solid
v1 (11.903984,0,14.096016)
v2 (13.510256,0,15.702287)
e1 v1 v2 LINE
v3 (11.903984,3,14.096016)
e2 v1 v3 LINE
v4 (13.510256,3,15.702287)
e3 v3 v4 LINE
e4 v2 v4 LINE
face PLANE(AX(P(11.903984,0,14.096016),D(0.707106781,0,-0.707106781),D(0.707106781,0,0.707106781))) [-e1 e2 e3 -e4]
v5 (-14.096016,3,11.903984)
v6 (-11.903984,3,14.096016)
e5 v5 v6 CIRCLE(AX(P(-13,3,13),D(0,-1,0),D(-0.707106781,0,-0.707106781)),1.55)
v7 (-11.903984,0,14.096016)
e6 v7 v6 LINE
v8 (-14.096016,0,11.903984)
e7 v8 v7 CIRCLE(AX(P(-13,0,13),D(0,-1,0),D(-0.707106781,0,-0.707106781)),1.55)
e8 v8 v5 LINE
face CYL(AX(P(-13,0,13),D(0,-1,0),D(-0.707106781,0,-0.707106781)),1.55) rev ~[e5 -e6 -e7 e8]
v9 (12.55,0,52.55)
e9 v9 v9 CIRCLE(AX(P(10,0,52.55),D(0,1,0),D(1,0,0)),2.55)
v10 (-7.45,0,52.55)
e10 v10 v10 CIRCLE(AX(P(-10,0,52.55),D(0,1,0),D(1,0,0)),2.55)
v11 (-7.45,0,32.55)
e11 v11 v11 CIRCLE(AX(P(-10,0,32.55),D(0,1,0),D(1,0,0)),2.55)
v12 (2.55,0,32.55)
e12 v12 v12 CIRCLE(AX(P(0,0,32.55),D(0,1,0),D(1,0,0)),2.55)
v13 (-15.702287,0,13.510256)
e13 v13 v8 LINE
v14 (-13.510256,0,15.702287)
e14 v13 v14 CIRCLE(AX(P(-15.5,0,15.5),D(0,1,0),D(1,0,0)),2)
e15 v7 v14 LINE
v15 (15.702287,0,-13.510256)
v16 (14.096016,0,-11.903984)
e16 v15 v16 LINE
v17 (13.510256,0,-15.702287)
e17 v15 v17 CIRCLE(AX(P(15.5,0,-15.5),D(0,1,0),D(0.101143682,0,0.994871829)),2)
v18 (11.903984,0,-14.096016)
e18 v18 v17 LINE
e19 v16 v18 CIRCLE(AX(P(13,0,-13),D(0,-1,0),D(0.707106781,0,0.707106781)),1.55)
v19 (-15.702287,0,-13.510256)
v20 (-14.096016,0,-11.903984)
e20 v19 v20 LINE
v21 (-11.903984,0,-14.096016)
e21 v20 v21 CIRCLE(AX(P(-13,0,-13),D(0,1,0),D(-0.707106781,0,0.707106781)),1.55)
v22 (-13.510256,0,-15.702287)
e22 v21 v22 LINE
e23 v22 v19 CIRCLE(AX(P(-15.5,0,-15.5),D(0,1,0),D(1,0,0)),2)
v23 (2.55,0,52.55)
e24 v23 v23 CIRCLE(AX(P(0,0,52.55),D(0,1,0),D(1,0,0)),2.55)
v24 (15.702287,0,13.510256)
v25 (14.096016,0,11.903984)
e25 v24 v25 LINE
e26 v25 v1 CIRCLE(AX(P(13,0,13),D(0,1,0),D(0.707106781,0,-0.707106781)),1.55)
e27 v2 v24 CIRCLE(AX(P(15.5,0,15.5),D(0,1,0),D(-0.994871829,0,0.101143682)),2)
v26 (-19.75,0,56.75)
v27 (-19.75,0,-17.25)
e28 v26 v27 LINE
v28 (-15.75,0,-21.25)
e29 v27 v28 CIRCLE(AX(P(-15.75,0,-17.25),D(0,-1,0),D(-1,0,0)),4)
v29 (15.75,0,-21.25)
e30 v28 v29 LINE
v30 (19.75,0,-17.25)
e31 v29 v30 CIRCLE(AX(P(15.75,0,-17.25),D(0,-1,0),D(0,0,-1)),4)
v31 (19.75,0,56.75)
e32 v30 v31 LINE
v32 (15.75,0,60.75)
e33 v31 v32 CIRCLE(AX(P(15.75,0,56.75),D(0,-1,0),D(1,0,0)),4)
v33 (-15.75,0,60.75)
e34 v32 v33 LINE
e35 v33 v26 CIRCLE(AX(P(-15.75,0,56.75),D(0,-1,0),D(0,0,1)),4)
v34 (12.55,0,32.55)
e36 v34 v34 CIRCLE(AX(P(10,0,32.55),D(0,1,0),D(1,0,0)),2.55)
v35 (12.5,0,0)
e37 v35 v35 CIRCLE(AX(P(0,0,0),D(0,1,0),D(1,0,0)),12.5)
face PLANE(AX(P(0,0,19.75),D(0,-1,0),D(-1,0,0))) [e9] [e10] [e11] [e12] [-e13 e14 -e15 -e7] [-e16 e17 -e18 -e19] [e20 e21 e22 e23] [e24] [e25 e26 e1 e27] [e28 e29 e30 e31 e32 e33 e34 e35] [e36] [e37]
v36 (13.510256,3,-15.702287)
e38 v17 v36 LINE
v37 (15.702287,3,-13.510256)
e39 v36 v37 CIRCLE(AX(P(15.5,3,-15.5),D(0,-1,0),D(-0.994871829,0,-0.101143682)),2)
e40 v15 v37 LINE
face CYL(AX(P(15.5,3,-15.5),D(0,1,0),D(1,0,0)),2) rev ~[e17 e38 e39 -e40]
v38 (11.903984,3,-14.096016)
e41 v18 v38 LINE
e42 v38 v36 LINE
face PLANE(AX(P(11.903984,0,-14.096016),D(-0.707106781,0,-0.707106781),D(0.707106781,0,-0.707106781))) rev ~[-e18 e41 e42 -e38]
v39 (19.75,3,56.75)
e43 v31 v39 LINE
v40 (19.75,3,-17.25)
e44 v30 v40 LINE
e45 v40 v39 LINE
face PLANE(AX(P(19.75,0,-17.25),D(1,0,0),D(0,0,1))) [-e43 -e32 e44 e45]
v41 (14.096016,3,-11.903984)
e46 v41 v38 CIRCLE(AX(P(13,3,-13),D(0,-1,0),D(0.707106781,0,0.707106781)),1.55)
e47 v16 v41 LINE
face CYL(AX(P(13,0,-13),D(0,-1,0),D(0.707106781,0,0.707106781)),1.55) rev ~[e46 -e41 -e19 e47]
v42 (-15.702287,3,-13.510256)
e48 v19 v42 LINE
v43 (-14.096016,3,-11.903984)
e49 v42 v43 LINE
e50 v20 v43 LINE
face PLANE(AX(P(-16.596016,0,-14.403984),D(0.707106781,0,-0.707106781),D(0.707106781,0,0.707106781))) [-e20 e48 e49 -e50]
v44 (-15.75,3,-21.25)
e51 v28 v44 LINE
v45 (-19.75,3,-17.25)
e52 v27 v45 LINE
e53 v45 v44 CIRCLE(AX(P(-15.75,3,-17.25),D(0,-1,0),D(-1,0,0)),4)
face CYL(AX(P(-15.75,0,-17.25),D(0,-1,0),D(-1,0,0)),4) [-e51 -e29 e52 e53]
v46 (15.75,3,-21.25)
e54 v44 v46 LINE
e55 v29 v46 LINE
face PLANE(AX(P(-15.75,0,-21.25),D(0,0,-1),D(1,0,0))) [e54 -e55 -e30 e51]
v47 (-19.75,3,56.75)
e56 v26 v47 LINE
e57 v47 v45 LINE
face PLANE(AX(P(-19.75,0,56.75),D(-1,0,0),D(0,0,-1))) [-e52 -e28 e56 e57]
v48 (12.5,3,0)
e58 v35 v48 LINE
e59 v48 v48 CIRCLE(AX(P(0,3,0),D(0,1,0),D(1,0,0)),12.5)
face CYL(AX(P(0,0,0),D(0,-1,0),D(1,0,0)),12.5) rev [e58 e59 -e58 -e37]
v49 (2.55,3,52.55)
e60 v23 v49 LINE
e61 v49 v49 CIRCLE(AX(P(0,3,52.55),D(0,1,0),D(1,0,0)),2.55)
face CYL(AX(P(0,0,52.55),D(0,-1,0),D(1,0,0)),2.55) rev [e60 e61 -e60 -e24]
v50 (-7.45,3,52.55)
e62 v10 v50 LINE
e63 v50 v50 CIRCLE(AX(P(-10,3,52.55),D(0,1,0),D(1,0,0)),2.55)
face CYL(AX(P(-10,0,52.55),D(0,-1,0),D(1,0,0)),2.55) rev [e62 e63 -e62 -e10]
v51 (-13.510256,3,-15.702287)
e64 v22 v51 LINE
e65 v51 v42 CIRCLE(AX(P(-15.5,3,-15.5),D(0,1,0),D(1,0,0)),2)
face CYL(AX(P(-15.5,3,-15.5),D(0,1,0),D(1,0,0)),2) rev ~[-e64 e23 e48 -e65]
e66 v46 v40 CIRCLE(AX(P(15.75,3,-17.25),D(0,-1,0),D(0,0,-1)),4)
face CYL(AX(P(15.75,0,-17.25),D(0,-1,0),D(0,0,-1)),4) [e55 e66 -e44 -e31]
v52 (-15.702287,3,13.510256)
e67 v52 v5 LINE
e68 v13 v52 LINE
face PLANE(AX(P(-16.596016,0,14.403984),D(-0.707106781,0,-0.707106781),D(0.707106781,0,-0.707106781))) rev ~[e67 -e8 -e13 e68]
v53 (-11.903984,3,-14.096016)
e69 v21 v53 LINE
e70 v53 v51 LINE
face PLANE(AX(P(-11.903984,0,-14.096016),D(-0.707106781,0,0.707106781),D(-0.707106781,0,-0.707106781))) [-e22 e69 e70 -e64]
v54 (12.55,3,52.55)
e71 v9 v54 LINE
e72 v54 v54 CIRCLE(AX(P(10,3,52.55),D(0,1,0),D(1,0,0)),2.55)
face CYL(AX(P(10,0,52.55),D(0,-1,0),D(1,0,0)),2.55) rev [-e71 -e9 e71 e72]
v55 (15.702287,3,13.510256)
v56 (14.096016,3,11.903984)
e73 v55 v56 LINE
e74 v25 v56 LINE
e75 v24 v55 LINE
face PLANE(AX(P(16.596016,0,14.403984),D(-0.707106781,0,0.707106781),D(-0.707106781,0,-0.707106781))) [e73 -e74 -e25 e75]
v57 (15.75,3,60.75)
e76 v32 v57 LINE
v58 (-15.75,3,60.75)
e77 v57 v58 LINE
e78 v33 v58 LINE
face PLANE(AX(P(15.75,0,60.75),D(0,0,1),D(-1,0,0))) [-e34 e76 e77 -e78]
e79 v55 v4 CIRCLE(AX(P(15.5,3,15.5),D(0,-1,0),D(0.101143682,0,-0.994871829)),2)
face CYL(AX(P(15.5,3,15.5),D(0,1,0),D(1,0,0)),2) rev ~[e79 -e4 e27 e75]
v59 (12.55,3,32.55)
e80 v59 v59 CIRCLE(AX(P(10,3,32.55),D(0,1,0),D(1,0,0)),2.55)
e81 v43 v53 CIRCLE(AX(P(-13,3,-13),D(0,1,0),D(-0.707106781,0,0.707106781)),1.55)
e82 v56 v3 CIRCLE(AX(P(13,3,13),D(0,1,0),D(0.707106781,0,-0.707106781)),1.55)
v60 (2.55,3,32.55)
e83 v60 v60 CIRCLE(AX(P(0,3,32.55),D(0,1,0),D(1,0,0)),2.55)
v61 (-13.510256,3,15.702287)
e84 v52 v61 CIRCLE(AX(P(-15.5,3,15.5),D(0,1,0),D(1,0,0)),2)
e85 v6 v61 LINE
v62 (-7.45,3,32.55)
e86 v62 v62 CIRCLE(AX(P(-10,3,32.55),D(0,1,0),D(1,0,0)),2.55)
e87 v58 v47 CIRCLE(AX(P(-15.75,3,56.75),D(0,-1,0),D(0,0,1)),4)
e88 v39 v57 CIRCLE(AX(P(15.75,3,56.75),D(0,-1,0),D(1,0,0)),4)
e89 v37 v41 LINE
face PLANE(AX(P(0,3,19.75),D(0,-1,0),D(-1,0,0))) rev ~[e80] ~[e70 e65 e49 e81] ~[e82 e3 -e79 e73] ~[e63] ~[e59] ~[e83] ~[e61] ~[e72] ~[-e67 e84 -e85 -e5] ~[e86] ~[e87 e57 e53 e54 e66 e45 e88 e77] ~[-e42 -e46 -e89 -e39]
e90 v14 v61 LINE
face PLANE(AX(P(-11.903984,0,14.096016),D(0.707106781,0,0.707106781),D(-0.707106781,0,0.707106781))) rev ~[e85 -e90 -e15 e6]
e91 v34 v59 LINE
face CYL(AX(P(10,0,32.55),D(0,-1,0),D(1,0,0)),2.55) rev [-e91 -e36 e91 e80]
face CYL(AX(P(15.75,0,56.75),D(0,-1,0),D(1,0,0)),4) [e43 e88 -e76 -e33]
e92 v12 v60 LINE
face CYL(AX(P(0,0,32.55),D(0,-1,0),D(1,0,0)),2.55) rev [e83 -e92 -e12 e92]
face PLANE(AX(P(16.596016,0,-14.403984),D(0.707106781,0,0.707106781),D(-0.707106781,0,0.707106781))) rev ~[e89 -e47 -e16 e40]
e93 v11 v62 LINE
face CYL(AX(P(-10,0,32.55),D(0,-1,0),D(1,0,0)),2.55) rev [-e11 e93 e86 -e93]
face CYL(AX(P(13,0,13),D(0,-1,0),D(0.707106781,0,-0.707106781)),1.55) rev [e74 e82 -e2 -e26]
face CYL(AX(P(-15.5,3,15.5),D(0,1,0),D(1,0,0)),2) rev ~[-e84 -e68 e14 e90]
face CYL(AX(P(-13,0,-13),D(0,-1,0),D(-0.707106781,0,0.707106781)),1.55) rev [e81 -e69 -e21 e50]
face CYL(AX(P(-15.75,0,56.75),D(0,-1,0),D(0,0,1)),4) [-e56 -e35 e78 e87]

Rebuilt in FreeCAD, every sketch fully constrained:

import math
import FreeCAD as App
import Part
import Sketcher

V = App.Vector
Q = App.Units.Quantity

doc = App.newDocument("Part")
body = doc.addObject("PartDesign::Body", "Body")

sketch1 = body.newObject("Sketcher::SketchObject", "Sketch")
sketch1.AttachmentSupport = (doc.getObject("XZ_Plane"), [""])
sketch1.MapMode = "FlatFace"
sketch1.addGeometry([
    Part.LineSegment(V(-15.8, 60.8, 0), V(15.8, 60.8, 0)),
    Part.ArcOfCircle(Part.Circle(V(15.8, 56.8, 0), V(0, 0, 1), 4), math.radians(0), math.radians(90)),
    Part.LineSegment(V(19.8, 56.8, 0), V(19.8, -17.2, 0)),
    Part.ArcOfCircle(Part.Circle(V(15.8, -17.3, 0), V(0, 0, 1), 4), math.radians(-90), math.radians(0)),
    Part.LineSegment(V(15.8, -21.2, 0), V(-15.8, -21.2, 0)),
    Part.ArcOfCircle(Part.Circle(V(-15.8, -17.3, 0), V(0, 0, 1), 4), math.radians(180), math.radians(270)),
    Part.LineSegment(V(-19.8, -17.2, 0), V(-19.8, 56.8, 0)),
    Part.ArcOfCircle(Part.Circle(V(-15.8, 56.8, 0), V(0, 0, 1), 4), math.radians(90), math.radians(180)),
    Part.Circle(V(10, 52.5, 0), V(0, 0, 1), 2.5),
    Part.Circle(V(10, 32.5, 0), V(0, 0, 1), 2.5),
    Part.Circle(V(0, 52.5, 0), V(0, 0, 1), 2.5),
    Part.Circle(V(-10, 52.5, 0), V(0, 0, 1), 2.5),
    Part.Circle(V(0, 32.5, 0), V(0, 0, 1), 2.5),
    Part.Circle(V(-10, 32.5, 0), V(0, 0, 1), 2.5),
    Part.ArcOfCircle(Part.Circle(V(13, 13, 0), V(0, 0, 1), 1.6), math.radians(135), math.radians(315)),
    Part.LineSegment(V(14.1, 11.9, 0), V(16.6, 14.4, 0)),
    Part.ArcOfCircle(Part.Circle(V(15.5, 15.5, 0), V(0, 0, 1), 1.6), math.radians(-45), math.radians(135)),
    Part.LineSegment(V(14.4, 16.6, 0), V(11.9, 14.1, 0)),
    Part.LineSegment(V(11.9, -14.1, 0), V(14.4, -16.6, 0)),
    Part.ArcOfCircle(Part.Circle(V(15.5, -15.5, 0), V(0, 0, 1), 1.6), math.radians(-135), math.radians(45)),
    Part.LineSegment(V(16.6, -14.4, 0), V(14.1, -11.9, 0)),
    Part.ArcOfCircle(Part.Circle(V(13, -13, 0), V(0, 0, 1), 1.6), math.radians(45), math.radians(225)),
    Part.LineSegment(V(-11.9, 14.1, 0), V(-14.4, 16.6, 0)),
    Part.ArcOfCircle(Part.Circle(V(-15.5, 15.5, 0), V(0, 0, 1), 1.6), math.radians(45), math.radians(225)),
    Part.LineSegment(V(-16.6, 14.4, 0), V(-14.1, 11.9, 0)),
    Part.ArcOfCircle(Part.Circle(V(-13, 13, 0), V(0, 0, 1), 1.6), math.radians(-135), math.radians(45)),
    Part.Circle(V(0, 0, 0), V(0, 0, 1), 12.5),
    Part.ArcOfCircle(Part.Circle(V(-13, -13, 0), V(0, 0, 1), 1.6), math.radians(-45), math.radians(135)),
    Part.LineSegment(V(-14.1, -11.9, 0), V(-16.6, -14.4, 0)),
    Part.ArcOfCircle(Part.Circle(V(-15.5, -15.5, 0), V(0, 0, 1), 1.6), math.radians(135), math.radians(315)),
    Part.LineSegment(V(-14.4, -16.6, 0), V(-11.9, -14.1, 0)),
], False)
sketch1.addConstraint([
    Sketcher.Constraint("Tangent", 0, 2, 1, 2),
    Sketcher.Constraint("Tangent", 1, 1, 2, 1),
    Sketcher.Constraint("Tangent", 2, 2, 3, 2),
    Sketcher.Constraint("Tangent", 3, 1, 4, 1),
    Sketcher.Constraint("Tangent", 4, 2, 5, 2),
    Sketcher.Constraint("Tangent", 5, 1, 6, 1),
    Sketcher.Constraint("Tangent", 6, 2, 7, 2),
    Sketcher.Constraint("Tangent", 7, 1, 0, 1),
    Sketcher.Constraint("Tangent", 14, 2, 15, 1),
    Sketcher.Constraint("Tangent", 15, 2, 16, 1),
    Sketcher.Constraint("Tangent", 16, 2, 17, 1),
    Sketcher.Constraint("Tangent", 17, 2, 14, 1),
    Sketcher.Constraint("Tangent", 18, 2, 19, 1),
    Sketcher.Constraint("Tangent", 19, 2, 20, 1),
    Sketcher.Constraint("Tangent", 20, 2, 21, 1),
    Sketcher.Constraint("Tangent", 21, 2, 18, 1),
    Sketcher.Constraint("Tangent", 22, 2, 23, 1),
    Sketcher.Constraint("Tangent", 23, 2, 24, 1),
    Sketcher.Constraint("Tangent", 24, 2, 25, 1),
    Sketcher.Constraint("Tangent", 25, 2, 22, 1),
    Sketcher.Constraint("Tangent", 27, 2, 28, 1),
    Sketcher.Constraint("Tangent", 28, 2, 29, 1),
    Sketcher.Constraint("Tangent", 29, 2, 30, 1),
    Sketcher.Constraint("Tangent", 30, 2, 27, 1),
    Sketcher.Constraint("Horizontal", 0),
    Sketcher.Constraint("Vertical", 2),
    Sketcher.Constraint("Horizontal", 4),
    Sketcher.Constraint("Vertical", 6),
    Sketcher.Constraint("Coincident", 26, 3, -1, 1),
    Sketcher.Constraint("Equal", 1, 3),
    Sketcher.Constraint("Equal", 3, 5),
    Sketcher.Constraint("Equal", 5, 7),
    Sketcher.Constraint("Equal", 8, 9),
    Sketcher.Constraint("Equal", 9, 10),
    Sketcher.Constraint("Equal", 10, 11),
    Sketcher.Constraint("Equal", 11, 12),
    Sketcher.Constraint("Equal", 12, 13),
    Sketcher.Constraint("Equal", 14, 16),
    Sketcher.Constraint("Equal", 16, 19),
    Sketcher.Constraint("Equal", 19, 21),
    Sketcher.Constraint("Equal", 21, 23),
    Sketcher.Constraint("Equal", 23, 25),
    Sketcher.Constraint("Equal", 25, 27),
    Sketcher.Constraint("Equal", 27, 29),
    Sketcher.Constraint("Symmetric", 19, 3, 23, 3, -1, 1),
    Sketcher.Constraint("Symmetric", 21, 3, 25, 3, -1, 1),
    Sketcher.Constraint("Symmetric", 14, 3, 27, 3, -1, 1),
    Sketcher.Constraint("Symmetric", 16, 3, 29, 3, -1, 1),
    Sketcher.Constraint("Symmetric", 8, 3, 11, 3, -2),
    Sketcher.Constraint("Symmetric", 9, 3, 13, 3, -2),
    Sketcher.Constraint("Symmetric", 16, 3, 23, 3, -2),
    Sketcher.Constraint("Symmetric", 14, 3, 25, 3, -2),
    Sketcher.Constraint("PointOnObject", 10, 3, -2),
    Sketcher.Constraint("PointOnObject", 12, 3, -2),
    Sketcher.Constraint("Perpendicular", 17, 18),
    Sketcher.Constraint("Horizontal", 8, 3, 10, 3),
    Sketcher.Constraint("Horizontal", 9, 3, 12, 3),
    Sketcher.Constraint("Vertical", 8, 3, 9, 3),
    Sketcher.Constraint("Diameter", 26, Q("25 mm")),
    Sketcher.Constraint("Radius", 1, Q("4 mm")),
    Sketcher.Constraint("Diameter", 8, Q("5.1 mm")),
    Sketcher.Constraint("DistanceY", 2, 2, 2, 1, Q("74 mm")),
    Sketcher.Constraint("Radius", 14, Q("1.55 mm")),
    Sketcher.Constraint("DistanceX", 0, 1, 0, 2, Q("31.5 mm")),
    Sketcher.Constraint("DistanceX", -1, 1, 8, 3, Q("10 mm")),
    Sketcher.Constraint("DistanceX", -1, 1, 14, 3, Q("13 mm")),
    Sketcher.Constraint("DistanceY", -1, 1, 14, 3, Q("13 mm")),
    Sketcher.Constraint("DistanceY", 9, 3, 8, 3, Q("20 mm")),
    Sketcher.Constraint("DistanceY", 19, 3, 16, 3, Q("31 mm")),
    Sketcher.Constraint("DistanceY", 8, 3, 1, 3, Q("4.2 mm")),
    Sketcher.Constraint("DistanceX", -1, 1, 1, 3, Q("15.75 mm")),
    Sketcher.Constraint("DistanceY", -1, 1, 1, 3, Q("56.75 mm")),
])
pad1 = body.newObject("PartDesign::Pad", "Pad")
pad1.Profile = sketch1
pad1.Length = 3
pad1.Reversed = True

sketch2 = body.newObject("Sketcher::SketchObject", "Sketch001")
sketch2.AttachmentSupport = (doc.getObject("XZ_Plane"), [""])
sketch2.MapMode = "FlatFace"
sketch2.AttachmentOffset = App.Placement(V(0, 0, -3), App.Rotation())
sketch2.addGeometry([
    Part.Circle(V(-15.5, -15.5, 0), V(0, 0, 1), 2),
    Part.Circle(V(15.5, -15.5, 0), V(0, 0, 1), 2),
    Part.Circle(V(-15.5, 15.5, 0), V(0, 0, 1), 2),
    Part.Circle(V(15.5, 15.5, 0), V(0, 0, 1), 2),
], False)
sketch2.addConstraint([
    Sketcher.Constraint("Equal", 0, 1),
    Sketcher.Constraint("Equal", 1, 2),
    Sketcher.Constraint("Equal", 2, 3),
    Sketcher.Constraint("Symmetric", 1, 3, 2, 3, -1, 1),
    Sketcher.Constraint("Symmetric", 0, 3, 3, 3, -1, 1),
    Sketcher.Constraint("Symmetric", 0, 3, 1, 3, -2),
    Sketcher.Constraint("Diameter", 0, Q("4 mm")),
    Sketcher.Constraint("DistanceX", 0, 3, 1, 3, Q("31 mm")),
    Sketcher.Constraint("DistanceY", 0, 3, 2, 3, Q("31 mm")),
])
pocket1 = body.newObject("PartDesign::Pocket", "Pocket")
pocket1.Profile = sketch2
pocket1.Length = 10
pocket1.Reversed = True

doc.recompute()
